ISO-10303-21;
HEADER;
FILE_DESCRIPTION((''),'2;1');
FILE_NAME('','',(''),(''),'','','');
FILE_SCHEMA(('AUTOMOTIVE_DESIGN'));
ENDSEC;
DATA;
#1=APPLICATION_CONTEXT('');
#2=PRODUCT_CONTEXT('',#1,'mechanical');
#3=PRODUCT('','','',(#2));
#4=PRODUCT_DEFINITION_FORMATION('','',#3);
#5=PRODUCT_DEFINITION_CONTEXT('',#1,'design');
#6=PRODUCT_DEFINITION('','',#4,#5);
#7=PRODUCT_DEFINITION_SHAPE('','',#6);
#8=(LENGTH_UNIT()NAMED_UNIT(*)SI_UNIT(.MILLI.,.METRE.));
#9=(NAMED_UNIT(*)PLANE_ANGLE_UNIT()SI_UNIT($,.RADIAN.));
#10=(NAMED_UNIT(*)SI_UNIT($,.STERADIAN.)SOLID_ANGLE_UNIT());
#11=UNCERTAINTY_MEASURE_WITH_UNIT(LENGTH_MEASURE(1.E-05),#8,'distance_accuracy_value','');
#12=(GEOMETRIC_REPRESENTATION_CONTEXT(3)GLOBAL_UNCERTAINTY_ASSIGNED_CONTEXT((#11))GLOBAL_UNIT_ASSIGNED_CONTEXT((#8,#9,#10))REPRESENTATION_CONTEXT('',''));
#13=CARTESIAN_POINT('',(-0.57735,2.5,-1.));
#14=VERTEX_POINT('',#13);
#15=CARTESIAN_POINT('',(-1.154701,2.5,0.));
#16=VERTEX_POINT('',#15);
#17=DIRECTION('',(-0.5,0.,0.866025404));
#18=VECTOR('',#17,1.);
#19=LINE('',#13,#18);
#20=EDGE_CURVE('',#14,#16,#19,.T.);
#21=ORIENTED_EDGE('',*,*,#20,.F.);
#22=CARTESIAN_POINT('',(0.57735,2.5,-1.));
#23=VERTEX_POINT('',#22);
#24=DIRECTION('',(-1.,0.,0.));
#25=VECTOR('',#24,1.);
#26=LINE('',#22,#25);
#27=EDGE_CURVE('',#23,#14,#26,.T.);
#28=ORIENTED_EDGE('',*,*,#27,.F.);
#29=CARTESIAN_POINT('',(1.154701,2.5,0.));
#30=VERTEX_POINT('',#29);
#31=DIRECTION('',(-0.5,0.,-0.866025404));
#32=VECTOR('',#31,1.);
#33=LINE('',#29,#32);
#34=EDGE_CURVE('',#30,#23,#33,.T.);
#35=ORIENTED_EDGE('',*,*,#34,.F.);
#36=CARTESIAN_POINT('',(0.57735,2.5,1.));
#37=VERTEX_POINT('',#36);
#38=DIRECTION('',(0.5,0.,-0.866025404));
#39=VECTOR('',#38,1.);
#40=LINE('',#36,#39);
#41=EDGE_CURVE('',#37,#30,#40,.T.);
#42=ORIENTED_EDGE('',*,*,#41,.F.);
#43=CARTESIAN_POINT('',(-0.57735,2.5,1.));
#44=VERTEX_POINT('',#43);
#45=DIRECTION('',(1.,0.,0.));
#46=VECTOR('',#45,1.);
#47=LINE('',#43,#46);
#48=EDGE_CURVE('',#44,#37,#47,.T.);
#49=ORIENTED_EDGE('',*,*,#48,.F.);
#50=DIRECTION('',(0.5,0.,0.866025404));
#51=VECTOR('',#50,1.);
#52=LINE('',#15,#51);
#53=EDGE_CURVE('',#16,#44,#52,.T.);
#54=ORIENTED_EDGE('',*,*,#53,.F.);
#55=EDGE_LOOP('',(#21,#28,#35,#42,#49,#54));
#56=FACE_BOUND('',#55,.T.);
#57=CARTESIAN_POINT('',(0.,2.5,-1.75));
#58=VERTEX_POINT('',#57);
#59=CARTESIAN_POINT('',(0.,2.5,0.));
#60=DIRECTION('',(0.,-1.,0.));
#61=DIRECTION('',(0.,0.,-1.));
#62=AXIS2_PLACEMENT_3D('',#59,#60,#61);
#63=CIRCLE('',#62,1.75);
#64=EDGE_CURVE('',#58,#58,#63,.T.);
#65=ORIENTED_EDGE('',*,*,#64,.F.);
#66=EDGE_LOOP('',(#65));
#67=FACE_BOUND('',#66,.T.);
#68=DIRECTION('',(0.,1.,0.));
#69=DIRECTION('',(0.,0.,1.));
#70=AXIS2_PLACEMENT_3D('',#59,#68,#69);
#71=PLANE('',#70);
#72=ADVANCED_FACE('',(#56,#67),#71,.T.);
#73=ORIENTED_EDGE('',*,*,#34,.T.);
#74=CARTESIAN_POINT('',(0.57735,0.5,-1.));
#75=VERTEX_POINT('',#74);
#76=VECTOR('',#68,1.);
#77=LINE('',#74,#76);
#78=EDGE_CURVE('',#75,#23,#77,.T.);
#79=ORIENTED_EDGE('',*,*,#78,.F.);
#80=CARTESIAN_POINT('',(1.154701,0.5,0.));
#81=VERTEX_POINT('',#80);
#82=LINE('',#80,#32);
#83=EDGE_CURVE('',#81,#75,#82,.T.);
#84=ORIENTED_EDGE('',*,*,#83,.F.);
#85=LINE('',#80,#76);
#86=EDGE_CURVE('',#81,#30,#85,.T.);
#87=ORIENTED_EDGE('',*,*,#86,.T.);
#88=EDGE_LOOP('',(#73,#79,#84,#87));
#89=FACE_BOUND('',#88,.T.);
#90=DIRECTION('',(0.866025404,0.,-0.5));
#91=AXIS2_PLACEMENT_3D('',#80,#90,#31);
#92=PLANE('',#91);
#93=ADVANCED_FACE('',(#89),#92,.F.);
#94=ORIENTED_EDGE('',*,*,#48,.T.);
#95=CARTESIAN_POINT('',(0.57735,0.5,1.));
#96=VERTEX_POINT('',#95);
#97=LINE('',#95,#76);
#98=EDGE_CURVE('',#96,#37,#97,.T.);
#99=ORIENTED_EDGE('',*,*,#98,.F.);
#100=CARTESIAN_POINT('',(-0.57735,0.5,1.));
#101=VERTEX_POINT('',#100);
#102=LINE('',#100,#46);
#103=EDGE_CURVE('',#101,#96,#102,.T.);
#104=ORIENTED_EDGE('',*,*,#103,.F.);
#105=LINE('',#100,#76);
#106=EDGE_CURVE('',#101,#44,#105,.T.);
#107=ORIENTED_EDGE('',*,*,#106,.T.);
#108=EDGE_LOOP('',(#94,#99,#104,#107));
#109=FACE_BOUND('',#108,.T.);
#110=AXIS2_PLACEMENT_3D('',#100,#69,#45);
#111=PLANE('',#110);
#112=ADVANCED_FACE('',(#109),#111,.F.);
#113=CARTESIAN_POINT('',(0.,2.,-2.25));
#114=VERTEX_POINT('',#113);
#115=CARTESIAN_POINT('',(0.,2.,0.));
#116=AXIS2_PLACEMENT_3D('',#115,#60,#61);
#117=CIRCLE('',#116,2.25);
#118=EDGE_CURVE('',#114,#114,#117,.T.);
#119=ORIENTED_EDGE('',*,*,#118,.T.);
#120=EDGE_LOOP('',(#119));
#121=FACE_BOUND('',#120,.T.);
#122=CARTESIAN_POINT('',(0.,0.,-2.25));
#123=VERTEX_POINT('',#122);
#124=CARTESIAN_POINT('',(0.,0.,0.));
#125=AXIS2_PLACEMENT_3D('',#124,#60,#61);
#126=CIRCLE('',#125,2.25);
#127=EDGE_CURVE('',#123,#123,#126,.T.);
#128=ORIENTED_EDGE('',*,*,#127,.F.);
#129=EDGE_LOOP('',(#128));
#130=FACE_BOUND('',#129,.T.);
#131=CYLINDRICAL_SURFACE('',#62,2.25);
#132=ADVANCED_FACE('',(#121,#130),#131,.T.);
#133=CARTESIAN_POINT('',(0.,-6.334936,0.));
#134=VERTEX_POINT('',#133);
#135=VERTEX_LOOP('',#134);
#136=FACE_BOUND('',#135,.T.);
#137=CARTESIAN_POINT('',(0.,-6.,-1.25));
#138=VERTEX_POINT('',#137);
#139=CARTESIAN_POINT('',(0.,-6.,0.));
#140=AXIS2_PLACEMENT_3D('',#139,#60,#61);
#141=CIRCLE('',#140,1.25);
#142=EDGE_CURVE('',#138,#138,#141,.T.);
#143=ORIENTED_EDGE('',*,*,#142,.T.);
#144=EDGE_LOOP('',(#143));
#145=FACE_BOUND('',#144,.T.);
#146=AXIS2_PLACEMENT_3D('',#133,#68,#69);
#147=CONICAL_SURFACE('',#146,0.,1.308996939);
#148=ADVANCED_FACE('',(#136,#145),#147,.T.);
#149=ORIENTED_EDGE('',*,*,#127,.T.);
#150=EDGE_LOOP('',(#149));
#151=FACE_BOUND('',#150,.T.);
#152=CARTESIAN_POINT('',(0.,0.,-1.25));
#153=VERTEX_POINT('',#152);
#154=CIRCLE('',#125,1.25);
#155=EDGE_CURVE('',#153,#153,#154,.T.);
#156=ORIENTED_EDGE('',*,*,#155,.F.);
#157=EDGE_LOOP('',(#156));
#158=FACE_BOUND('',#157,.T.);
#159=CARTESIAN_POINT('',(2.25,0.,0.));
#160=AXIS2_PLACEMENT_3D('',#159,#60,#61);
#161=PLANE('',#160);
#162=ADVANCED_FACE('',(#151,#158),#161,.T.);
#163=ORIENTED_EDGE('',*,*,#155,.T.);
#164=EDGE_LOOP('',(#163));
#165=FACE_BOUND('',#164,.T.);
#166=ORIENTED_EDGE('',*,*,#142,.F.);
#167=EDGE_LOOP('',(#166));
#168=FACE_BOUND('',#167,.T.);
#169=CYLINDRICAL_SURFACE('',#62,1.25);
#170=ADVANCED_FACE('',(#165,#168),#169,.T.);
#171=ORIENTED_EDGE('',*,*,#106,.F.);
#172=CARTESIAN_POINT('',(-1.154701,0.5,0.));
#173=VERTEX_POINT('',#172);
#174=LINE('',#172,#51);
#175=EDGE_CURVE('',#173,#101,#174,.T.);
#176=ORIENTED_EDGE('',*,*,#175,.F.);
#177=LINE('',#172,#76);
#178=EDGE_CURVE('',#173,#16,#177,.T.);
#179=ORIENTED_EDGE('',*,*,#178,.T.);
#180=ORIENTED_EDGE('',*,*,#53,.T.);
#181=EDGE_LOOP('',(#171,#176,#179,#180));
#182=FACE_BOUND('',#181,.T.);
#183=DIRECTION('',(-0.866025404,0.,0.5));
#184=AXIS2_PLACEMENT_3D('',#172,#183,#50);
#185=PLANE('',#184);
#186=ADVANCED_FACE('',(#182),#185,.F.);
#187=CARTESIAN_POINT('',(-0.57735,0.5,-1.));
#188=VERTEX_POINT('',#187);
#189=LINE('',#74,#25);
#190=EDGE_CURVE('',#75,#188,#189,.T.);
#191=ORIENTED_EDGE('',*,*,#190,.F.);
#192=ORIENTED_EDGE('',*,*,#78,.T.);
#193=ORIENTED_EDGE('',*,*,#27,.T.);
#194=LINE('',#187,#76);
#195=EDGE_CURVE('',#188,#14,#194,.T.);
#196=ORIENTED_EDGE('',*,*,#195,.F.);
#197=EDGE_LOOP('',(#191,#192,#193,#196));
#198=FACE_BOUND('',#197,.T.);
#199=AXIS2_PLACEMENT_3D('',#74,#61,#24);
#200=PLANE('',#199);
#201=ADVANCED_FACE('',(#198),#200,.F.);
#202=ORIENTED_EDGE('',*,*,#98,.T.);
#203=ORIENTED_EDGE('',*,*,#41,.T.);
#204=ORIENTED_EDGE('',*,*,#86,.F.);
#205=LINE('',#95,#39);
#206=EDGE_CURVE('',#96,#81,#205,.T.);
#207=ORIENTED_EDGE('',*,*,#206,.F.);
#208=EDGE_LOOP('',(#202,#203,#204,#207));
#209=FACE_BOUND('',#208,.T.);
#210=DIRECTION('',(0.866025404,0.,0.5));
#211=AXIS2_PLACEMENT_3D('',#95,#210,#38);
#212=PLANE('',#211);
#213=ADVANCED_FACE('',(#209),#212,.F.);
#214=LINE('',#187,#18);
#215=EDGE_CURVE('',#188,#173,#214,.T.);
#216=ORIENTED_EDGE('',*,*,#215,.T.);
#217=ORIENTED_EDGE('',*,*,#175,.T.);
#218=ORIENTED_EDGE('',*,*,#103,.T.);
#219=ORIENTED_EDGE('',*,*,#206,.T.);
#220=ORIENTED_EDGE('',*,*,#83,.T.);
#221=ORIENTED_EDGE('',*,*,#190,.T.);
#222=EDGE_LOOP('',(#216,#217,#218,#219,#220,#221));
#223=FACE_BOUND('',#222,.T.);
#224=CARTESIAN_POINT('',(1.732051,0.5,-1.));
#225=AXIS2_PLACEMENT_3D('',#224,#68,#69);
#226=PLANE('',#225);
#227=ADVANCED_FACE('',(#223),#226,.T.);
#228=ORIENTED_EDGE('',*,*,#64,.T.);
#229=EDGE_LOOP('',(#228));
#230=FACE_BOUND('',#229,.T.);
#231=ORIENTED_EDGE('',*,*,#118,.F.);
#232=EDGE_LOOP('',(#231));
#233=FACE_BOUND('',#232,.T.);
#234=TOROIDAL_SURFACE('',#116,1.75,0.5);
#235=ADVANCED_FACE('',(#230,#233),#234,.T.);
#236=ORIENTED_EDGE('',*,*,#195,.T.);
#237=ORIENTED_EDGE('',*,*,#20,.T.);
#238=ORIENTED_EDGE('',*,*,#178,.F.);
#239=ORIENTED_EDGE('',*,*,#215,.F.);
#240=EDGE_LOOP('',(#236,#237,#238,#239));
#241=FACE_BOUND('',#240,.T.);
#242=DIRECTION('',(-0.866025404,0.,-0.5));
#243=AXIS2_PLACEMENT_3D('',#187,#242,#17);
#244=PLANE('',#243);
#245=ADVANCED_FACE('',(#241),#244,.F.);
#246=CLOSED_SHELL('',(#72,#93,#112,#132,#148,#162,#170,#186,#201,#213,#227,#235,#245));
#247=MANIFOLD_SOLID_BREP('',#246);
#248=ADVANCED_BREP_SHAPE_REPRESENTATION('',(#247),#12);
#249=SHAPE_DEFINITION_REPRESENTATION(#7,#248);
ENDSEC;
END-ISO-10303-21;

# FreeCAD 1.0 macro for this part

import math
import FreeCAD as App
import Part
import Sketcher

V = App.Vector
Q = App.Units.Quantity

doc = App.newDocument("Part")
body = doc.addObject("PartDesign::Body", "Body")

# Sketch on XY plane
sketch1 = doc.addObject("Sketcher::SketchObject", "Sketch")
body.addObject(sketch1)
sketch1.AttachmentSupport = (doc.XY_Plane, [""])
sketch1.MapMode = "FlatFace"
sketch1.addGeometry([
    Part.LineSegment(V(0, 2.5, 0), V(0, -6.334936, 0)),  # 0
    Part.LineSegment(V(0, -6.334936, 0), V(1.25, -6, 0)),  # 1
    Part.LineSegment(V(1.25, -6, 0), V(1.25, 0, 0)),  # 2
    Part.LineSegment(V(1.25, 0, 0), V(2.25, 0, 0)),  # 3
    Part.LineSegment(V(2.25, 0, 0), V(2.25, 2, 0)),  # 4
    Part.ArcOfCircle(Part.Circle(V(1.75, 2, 0), V(0, 0, 1), 0.5), math.radians(0), math.radians(90)),  # 5
    Part.LineSegment(V(1.75, 2.5, 0), V(0, 2.5, 0)),  # 6
], False)
sketch1.addConstraint([
    Sketcher.Constraint("Coincident", 0, 2, 1, 1),
    Sketcher.Constraint("Coincident", 1, 2, 2, 1),
    Sketcher.Constraint("Coincident", 2, 2, 3, 1),
    Sketcher.Constraint("Coincident", 3, 2, 4, 1),
    Sketcher.Constraint("Tangent", 4, 2, 5, 1),
    Sketcher.Constraint("Tangent", 5, 2, 6, 1),
    Sketcher.Constraint("Coincident", 6, 2, 0, 1),
    Sketcher.Constraint("Vertical", 0),
    Sketcher.Constraint("Vertical", 2),
    Sketcher.Constraint("Horizontal", 3),
    Sketcher.Constraint("Vertical", 4),
    Sketcher.Constraint("Horizontal", 6),
    Sketcher.Constraint("PointOnObject", 0, 2, -2),
    Sketcher.Constraint("PointOnObject", 2, 2, -1),
    Sketcher.Constraint("Radius", 5, 0.5),
    Sketcher.Constraint("DistanceX", 3, 1, 3, 2, 1.0),
    Sketcher.Constraint("DistanceY", 2, 1, 2, 2, 6.0),
    Sketcher.Constraint("DistanceY", 4, 1, 4, 2, 2.0),
    Sketcher.Constraint("Angle", 1, Q("15 deg")),
    Sketcher.Constraint("DistanceX", 6, 2, 6, 1, 1.75),
])
revolution = doc.addObject("PartDesign::Revolution", "Revolution")
body.addObject(revolution)
revolution.Profile = sketch1
revolution.ReferenceAxis = (sketch1, ["V_Axis"])
revolution.Angle = 360

# Sketch on XZ plane
sketch2 = doc.addObject("Sketcher::SketchObject", "Sketch001")
body.addObject(sketch2)
sketch2.AttachmentSupport = (doc.XZ_Plane, [""])
sketch2.MapMode = "FlatFace"
sketch2.AttachmentOffset = App.Placement(V(0, 0, -2.5), App.Rotation())
sketch2.addGeometry([
    Part.LineSegment(V(1.154701, 0, 0), V(0.57735, -1, 0)),  # 0
    Part.LineSegment(V(0.57735, -1, 0), V(-0.57735, -1, 0)),  # 1
    Part.LineSegment(V(-0.57735, -1, 0), V(-1.154701, 0, 0)),  # 2
    Part.LineSegment(V(-1.154701, 0, 0), V(-0.57735, 1, 0)),  # 3
    Part.LineSegment(V(-0.57735, 1, 0), V(0.57735, 1, 0)),  # 4
    Part.LineSegment(V(0.57735, 1, 0), V(1.154701, 0, 0)),  # 5
], False)
sketch2.addConstraint([
    Sketcher.Constraint("Coincident", 0, 2, 1, 1),
    Sketcher.Constraint("Coincident", 1, 2, 2, 1),
    Sketcher.Constraint("Coincident", 2, 2, 3, 1),
    Sketcher.Constraint("Coincident", 3, 2, 4, 1),
    Sketcher.Constraint("Coincident", 4, 2, 5, 1),
    Sketcher.Constraint("Coincident", 5, 2, 0, 1),
    Sketcher.Constraint("Horizontal", 1),
    Sketcher.Constraint("Horizontal", 4),
    Sketcher.Constraint("Symmetric", 0, 2, 3, 2, -1, 1),
    Sketcher.Constraint("Symmetric", 2, 2, 5, 2, -1, 1),
    Sketcher.Constraint("PointOnObject", 2, 2, -1),
    Sketcher.Constraint("Parallel", 2, 5),
    Sketcher.Constraint("Vertical", 1, 2, 3, 2),
    Sketcher.Constraint("Angle", 0, Q("-120 deg")),
    Sketcher.Constraint("DistanceY", 0, 2, -1, 1, 1.0),
    Sketcher.Constraint("DistanceX", 1, 2, 1, 1, 1.154701),
])
pocket1 = doc.addObject("PartDesign::Pocket", "Pocket")
body.addObject(pocket1)
pocket1.Profile = sketch2
pocket1.Length = 2
pocket1.Reversed = True

doc.recompute()
